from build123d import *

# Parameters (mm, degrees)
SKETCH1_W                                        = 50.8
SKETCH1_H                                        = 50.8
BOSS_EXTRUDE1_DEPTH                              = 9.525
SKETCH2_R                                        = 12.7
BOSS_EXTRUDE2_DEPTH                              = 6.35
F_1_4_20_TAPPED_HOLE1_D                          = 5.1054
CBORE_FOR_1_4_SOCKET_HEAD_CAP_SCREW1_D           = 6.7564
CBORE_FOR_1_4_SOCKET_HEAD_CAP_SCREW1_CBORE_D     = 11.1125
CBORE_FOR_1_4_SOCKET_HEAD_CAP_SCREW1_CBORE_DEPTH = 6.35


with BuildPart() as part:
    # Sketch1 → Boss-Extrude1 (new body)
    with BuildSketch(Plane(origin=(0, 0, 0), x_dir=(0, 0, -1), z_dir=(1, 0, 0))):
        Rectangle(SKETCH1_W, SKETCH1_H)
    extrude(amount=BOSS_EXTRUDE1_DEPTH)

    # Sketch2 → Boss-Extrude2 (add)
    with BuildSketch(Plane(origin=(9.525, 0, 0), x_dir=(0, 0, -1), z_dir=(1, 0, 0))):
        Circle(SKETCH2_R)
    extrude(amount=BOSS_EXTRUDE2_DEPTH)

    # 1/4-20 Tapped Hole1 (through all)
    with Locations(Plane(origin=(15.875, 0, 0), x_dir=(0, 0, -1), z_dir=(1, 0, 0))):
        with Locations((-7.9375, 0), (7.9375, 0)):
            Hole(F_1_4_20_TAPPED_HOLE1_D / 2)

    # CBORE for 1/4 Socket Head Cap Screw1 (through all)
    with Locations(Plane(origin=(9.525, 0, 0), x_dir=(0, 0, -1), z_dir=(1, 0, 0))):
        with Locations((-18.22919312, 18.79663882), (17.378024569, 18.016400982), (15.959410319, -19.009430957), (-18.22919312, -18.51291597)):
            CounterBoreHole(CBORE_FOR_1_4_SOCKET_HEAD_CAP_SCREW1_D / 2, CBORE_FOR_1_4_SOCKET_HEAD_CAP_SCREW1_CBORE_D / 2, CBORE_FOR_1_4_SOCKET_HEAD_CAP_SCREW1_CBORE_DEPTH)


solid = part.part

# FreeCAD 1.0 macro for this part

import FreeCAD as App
import Part
import Sketcher
Q = App.Units.Quantity


def add_polygon(sketch, points):
    """Adds a closed chain of lines whose ends are joined by coincident constraints."""
    first, n = sketch.GeometryCount, len(points)
    for a, b in zip(points, points[1:] + points[:1]):
        sketch.addGeometry(Part.LineSegment(App.Vector(*a, 0), App.Vector(*b, 0)), False)
    for i in range(n):
        sketch.addConstraint(Sketcher.Constraint("Coincident", first + i, 2, first + (i + 1) % n, 1))

doc = App.newDocument("Part")
body = doc.addObject("PartDesign::Body", "Body")

sketch1 = body.newObject("Sketcher::SketchObject", "Sketch")
sketch1.AttachmentSupport = (doc.getObject("YZ_Plane"), [""])
sketch1.MapMode = "FlatFace"
add_polygon(sketch1, [(25.4, 25.4), (-25.4, 25.4), (-25.4, -25.4), (25.4, -25.4)])
sketch1.addConstraint([
    Sketcher.Constraint("Horizontal", 0),
    Sketcher.Constraint("Vertical", 1),
    Sketcher.Constraint("Horizontal", 2),
    Sketcher.Constraint("Vertical", 3),
    Sketcher.Constraint("Symmetric", 0, 2, 2, 2, -1, 1),
    Sketcher.Constraint("Equal", 2, 1),
    Sketcher.Constraint("DistanceX", 0, 2, 0, 1, Q("2 in")),
])
pad1 = body.newObject("PartDesign::Pad", "Pad")
pad1.Profile = sketch1
pad1.Length = Q("0.375 in")

sketch2 = body.newObject("Sketcher::SketchObject", "Sketch001")
sketch2.AttachmentSupport = (doc.getObject("YZ_Plane"), [""])
sketch2.MapMode = "FlatFace"
sketch2.AttachmentOffset = App.Placement(App.Vector(0, 0, 0.375 * 25.4), App.Rotation())
sketch2.addGeometry(Part.Circle(App.Vector(0, 0, 0), App.Vector(0, 0, 1), 12.7), False)
sketch2.addConstraint([
    Sketcher.Constraint("Coincident", 0, 3, -1, 1),
    Sketcher.Constraint("Diameter", 0, Q("1 in")),
])
pad2 = body.newObject("PartDesign::Pad", "Pad001")
pad2.Profile = sketch2
pad2.Length = Q("0.25 in")

sketch3 = body.newObject("Sketcher::SketchObject", "Sketch002")
sketch3.AttachmentSupport = (doc.getObject("YZ_Plane"), [""])
sketch3.MapMode = "FlatFace"
sketch3.AttachmentOffset = App.Placement(App.Vector(0, 0, 0.625 * 25.4), App.Rotation())
sketch3.addGeometry([
    Part.Circle(App.Vector(0, 7.9375, 0), App.Vector(0, 0, 1), 2.5527),
    Part.Circle(App.Vector(0, -7.9375, 0), App.Vector(0, 0, 1), 2.5527),
], False)
sketch3.addConstraint([
    Sketcher.Constraint("Equal", 0, 1),
    Sketcher.Constraint("Symmetric", 0, 3, 1, 3, -1, 1),
    Sketcher.Constraint("PointOnObject", 0, 3, -2),
    Sketcher.Constraint("Diameter", 0, Q("0.201 in")),
    Sketcher.Constraint("DistanceY", -1, 1, 0, 3, Q("0.3125 in")),
])
doc.recompute()
hole = body.newObject("PartDesign::Hole", "Hole")
hole.Profile = sketch3
hole.ThreadType = "None"
hole.Diameter = Q("0.201 in")
hole.DepthType = "ThroughAll"

sketch4 = body.newObject("Sketcher::SketchObject", "Sketch003")
sketch4.AttachmentSupport = (doc.getObject("YZ_Plane"), [""])
sketch4.MapMode = "FlatFace"
sketch4.AttachmentOffset = App.Placement(App.Vector(0, 0, 0.375 * 25.4), App.Rotation())
sketch4.addGeometry([
    Part.Circle(App.Vector(18.796639, 18.229193, 0), App.Vector(0, 0, 1), 3.3782),
    Part.Circle(App.Vector(18.016401, -17.378025, 0), App.Vector(0, 0, 1), 3.3782),
    Part.Circle(App.Vector(-19.009431, -15.95941, 0), App.Vector(0, 0, 1), 3.3782),
    Part.Circle(App.Vector(-18.512916, 18.229193, 0), App.Vector(0, 0, 1), 3.3782),
], False)
sketch4.addConstraint([
    Sketcher.Constraint("Equal", 0, 1),
    Sketcher.Constraint("Equal", 1, 2),
    Sketcher.Constraint("Equal", 2, 3),
    Sketcher.Constraint("Horizontal", 0, 3, 3, 3),
    Sketcher.Constraint("Diameter", 0, Q("0.266 in")),
    Sketcher.Constraint("DistanceX", -1, 1, 1, 3, 18.016401),
    Sketcher.Constraint("DistanceX", -1, 1, 0, 3, 18.796639),
    Sketcher.Constraint("DistanceX", 2, 3, -1, 1, 19.009431),
    Sketcher.Constraint("DistanceY", 2, 3, -1, 1, 15.95941),
    Sketcher.Constraint("DistanceY", -1, 1, 0, 3, 18.229193),
    Sketcher.Constraint("DistanceY", 1, 3, -1, 1, 17.378025),
    Sketcher.Constraint("DistanceX", 3, 3, -1, 1, 18.512916),
])
doc.recompute()
hole2 = body.newObject("PartDesign::Hole", "Hole001")
hole2.Profile = sketch4
hole2.ThreadType = "None"
hole2.Diameter = Q("0.266 in")
hole2.DepthType = "ThroughAll"
hole2.HoleCutType = "Counterbore"
hole2.HoleCutDiameter = Q("0.4375 in")
hole2.HoleCutDepth = Q("0.25 in")

doc.recompute()
